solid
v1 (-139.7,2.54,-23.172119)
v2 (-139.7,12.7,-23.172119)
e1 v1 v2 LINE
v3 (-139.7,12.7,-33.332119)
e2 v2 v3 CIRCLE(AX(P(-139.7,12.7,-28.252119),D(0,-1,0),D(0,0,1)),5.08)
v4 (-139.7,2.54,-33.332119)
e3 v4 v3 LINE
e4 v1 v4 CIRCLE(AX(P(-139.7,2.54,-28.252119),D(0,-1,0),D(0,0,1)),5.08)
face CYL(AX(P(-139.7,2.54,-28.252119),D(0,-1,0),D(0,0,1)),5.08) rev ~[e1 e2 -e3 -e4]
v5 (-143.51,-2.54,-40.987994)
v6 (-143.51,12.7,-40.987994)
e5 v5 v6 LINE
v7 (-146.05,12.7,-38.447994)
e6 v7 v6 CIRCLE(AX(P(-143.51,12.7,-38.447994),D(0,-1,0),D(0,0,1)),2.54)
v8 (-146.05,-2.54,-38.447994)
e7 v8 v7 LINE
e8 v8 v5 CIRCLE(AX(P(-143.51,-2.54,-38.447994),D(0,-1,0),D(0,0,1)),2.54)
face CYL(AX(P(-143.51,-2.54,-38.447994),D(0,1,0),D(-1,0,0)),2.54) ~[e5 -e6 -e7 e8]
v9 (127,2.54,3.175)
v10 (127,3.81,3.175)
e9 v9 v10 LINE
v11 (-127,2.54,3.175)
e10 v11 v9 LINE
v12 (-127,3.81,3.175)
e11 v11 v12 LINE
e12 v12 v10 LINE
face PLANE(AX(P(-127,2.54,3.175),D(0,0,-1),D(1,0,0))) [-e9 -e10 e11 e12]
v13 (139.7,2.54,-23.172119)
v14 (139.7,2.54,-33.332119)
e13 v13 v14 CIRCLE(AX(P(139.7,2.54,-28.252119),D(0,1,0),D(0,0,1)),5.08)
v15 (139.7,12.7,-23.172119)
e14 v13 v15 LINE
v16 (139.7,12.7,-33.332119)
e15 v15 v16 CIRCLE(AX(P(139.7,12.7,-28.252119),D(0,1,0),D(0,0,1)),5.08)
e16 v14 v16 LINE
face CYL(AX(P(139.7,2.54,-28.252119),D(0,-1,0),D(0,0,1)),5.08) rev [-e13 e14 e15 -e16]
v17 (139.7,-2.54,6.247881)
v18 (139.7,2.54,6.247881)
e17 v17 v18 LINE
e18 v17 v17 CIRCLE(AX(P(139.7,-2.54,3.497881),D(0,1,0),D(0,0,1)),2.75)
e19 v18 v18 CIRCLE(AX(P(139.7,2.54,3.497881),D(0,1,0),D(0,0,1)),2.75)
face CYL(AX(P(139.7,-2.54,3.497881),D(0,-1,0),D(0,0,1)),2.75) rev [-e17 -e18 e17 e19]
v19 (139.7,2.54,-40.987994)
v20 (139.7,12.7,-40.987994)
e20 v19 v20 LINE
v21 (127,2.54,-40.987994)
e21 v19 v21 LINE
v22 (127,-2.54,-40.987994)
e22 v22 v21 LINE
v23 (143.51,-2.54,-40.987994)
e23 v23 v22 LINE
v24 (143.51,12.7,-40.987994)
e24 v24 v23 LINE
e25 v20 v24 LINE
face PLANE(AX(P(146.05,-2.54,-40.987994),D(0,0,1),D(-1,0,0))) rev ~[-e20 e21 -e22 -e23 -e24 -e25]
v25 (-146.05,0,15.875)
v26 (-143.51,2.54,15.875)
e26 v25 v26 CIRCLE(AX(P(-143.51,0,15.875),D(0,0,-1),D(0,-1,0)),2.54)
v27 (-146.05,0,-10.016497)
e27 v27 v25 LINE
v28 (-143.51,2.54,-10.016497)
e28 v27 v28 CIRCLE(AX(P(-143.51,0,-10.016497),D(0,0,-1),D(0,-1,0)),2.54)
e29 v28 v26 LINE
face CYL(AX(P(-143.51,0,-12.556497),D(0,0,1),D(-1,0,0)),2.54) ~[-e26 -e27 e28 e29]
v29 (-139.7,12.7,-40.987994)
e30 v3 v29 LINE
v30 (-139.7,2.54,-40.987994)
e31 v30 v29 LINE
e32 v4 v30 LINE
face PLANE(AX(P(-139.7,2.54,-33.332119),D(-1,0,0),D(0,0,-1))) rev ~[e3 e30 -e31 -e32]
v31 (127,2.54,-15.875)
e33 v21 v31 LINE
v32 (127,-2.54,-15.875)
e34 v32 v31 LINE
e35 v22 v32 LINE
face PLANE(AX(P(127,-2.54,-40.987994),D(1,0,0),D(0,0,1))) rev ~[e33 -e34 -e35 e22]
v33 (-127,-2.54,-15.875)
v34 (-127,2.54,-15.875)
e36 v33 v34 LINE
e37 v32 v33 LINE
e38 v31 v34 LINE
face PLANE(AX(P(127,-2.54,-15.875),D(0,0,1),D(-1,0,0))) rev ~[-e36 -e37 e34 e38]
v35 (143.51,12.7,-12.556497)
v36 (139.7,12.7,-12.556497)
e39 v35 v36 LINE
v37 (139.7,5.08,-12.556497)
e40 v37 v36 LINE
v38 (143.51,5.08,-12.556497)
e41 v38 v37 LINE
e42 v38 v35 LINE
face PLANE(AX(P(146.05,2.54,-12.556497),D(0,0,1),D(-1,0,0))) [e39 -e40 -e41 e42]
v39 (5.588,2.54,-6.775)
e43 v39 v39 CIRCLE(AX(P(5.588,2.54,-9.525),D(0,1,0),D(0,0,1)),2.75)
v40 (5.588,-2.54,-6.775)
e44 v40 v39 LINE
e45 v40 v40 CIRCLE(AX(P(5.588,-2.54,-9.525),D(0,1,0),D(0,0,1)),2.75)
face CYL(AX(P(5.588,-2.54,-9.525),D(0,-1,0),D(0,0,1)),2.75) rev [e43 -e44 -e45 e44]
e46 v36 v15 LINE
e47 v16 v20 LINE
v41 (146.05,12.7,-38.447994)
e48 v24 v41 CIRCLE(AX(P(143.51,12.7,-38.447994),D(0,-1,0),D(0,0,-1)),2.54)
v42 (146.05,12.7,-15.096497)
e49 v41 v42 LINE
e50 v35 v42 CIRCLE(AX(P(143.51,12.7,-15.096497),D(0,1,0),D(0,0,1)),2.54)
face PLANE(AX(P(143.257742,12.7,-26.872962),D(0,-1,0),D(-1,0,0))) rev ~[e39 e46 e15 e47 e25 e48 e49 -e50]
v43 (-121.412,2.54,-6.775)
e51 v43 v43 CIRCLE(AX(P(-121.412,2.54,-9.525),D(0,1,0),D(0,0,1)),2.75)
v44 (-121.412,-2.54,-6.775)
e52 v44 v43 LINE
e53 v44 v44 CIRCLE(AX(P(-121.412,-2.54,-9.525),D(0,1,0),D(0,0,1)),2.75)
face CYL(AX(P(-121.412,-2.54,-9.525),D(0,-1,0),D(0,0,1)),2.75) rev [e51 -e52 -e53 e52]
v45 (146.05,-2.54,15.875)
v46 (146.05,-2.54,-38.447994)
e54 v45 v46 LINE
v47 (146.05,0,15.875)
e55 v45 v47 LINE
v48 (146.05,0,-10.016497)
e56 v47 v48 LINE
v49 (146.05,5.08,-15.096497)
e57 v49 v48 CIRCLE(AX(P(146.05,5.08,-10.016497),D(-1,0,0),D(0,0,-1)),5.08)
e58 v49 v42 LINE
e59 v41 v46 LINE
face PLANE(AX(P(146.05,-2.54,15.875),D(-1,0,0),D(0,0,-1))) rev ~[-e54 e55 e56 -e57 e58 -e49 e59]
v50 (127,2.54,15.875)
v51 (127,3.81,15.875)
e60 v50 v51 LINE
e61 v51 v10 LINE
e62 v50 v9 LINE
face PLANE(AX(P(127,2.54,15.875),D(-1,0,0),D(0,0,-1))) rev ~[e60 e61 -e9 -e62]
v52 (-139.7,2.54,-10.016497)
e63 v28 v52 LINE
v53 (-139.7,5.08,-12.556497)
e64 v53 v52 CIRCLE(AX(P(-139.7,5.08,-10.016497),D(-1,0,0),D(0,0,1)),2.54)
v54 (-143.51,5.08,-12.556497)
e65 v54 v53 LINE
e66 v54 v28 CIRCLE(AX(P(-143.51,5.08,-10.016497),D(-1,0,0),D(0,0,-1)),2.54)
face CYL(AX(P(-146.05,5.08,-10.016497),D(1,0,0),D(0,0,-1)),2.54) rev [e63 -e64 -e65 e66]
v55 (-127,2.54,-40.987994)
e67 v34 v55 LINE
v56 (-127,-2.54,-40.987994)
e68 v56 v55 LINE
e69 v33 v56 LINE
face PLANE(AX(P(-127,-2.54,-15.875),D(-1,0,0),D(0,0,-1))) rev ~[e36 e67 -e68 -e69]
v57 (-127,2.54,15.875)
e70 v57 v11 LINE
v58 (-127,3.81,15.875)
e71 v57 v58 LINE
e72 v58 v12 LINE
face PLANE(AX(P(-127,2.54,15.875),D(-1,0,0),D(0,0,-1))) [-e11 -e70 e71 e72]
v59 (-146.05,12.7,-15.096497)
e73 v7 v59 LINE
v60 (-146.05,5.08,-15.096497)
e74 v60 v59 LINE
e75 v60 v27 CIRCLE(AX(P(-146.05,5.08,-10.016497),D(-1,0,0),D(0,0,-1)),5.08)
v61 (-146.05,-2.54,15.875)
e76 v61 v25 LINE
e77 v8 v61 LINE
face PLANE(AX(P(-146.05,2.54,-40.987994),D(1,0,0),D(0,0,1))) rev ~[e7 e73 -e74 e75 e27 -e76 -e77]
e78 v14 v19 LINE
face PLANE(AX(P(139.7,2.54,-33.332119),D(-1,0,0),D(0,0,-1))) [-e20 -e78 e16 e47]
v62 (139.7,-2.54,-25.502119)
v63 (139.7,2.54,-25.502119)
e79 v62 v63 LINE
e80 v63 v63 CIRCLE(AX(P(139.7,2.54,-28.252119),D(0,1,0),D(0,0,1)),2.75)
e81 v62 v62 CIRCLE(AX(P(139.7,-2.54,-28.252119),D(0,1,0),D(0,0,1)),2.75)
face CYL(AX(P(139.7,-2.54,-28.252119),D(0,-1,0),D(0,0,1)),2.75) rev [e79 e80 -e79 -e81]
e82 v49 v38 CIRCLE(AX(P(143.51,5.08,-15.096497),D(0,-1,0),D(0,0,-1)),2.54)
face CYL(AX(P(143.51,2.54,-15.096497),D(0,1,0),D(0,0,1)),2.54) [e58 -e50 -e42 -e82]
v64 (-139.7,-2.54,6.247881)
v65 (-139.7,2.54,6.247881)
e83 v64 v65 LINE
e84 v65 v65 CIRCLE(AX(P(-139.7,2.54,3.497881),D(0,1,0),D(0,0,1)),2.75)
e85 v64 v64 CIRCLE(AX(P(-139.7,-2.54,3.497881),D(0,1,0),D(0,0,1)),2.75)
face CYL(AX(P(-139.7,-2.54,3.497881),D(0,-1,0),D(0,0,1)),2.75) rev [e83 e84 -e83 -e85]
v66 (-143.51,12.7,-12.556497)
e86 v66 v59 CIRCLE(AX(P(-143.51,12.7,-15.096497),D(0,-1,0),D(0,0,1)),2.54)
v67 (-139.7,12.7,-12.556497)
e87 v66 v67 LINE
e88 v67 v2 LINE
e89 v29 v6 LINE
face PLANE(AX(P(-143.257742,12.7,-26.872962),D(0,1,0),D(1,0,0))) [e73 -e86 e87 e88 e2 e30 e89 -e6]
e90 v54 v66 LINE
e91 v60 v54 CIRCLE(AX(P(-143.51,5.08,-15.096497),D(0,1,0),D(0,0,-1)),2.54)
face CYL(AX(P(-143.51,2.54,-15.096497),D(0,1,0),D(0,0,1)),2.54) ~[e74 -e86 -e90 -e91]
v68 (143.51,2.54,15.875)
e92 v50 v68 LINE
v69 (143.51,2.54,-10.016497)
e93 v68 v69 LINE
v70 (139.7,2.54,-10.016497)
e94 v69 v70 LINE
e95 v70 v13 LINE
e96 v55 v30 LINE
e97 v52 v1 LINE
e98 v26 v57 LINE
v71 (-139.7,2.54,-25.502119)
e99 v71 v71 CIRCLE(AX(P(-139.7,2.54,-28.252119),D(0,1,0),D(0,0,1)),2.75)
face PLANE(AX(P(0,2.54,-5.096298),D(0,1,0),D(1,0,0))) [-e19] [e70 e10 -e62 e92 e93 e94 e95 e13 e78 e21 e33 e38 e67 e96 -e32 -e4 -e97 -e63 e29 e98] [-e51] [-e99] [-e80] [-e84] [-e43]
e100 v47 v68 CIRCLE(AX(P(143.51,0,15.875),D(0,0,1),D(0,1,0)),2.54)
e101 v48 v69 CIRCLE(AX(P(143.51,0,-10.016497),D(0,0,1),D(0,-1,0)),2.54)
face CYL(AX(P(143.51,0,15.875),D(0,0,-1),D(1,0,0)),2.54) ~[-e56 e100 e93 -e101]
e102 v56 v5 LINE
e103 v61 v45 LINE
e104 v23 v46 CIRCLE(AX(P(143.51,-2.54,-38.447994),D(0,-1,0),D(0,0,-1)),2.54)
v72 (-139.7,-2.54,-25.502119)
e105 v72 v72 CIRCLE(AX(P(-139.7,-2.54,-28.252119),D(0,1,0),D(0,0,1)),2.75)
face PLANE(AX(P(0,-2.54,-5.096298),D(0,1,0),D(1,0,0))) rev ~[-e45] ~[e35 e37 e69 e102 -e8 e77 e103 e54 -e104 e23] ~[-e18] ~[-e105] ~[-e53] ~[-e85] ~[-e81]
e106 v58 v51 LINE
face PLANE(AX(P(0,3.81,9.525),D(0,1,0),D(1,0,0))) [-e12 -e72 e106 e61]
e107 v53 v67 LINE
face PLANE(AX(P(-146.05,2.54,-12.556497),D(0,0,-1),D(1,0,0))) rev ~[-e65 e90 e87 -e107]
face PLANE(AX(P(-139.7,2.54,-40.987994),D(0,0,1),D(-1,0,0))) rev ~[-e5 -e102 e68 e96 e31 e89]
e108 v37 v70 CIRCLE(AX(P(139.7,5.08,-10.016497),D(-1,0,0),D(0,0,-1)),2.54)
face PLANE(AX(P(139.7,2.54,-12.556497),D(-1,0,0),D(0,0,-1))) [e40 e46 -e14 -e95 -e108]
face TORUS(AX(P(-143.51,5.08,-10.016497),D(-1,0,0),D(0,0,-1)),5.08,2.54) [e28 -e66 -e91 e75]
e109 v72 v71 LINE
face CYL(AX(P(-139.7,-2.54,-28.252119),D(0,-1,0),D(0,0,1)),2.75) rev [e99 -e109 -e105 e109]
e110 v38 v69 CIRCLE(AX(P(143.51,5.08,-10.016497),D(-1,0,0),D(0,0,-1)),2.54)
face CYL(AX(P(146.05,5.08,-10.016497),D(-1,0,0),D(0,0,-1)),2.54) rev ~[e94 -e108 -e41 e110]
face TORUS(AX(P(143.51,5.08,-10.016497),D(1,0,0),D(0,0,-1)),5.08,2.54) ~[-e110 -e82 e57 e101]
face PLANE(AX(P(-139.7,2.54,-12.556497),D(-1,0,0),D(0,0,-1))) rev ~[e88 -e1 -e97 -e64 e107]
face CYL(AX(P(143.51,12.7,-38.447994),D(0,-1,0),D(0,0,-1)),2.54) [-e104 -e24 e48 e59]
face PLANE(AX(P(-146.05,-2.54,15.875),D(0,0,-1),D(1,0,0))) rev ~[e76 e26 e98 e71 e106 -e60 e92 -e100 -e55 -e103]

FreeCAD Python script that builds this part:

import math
import FreeCAD as App
import Part
import Sketcher

V = App.Vector
Q = App.Units.Quantity


def edges_at(feature, points):
    """Names of the edges that pass closest to the given points."""
    edges = feature.Shape.Edges
    near = lambda p: min(range(len(edges)), key=lambda i: edges[i].distToShape(Part.Vertex(*p))[0])
    return sorted({f"Edge{near(p) + 1}" for p in points})

doc = App.newDocument("Part")
body = doc.addObject("PartDesign::Body", "Body")

sketch1 = doc.addObject("Sketcher::SketchObject", "Sketch")
body.addObject(sketch1)
sketch1.AttachmentSupport = (doc.XZ_Plane, [""])
sketch1.MapMode = "FlatFace"
sketch1.addGeometry(Part.LineSegment(V(-146.1, 15.9, 0), V(146.1, 15.9, 0)), False)
sketch1.addGeometry(Part.LineSegment(V(146.1, 15.9, 0), V(146.1, -41, 0)), False)
sketch1.addGeometry(Part.LineSegment(V(146.1, -41, 0), V(127, -41, 0)), False)
sketch1.addGeometry(Part.LineSegment(V(127, -41, 0), V(127, -15.9, 0)), False)
sketch1.addGeometry(Part.LineSegment(V(127, -15.9, 0), V(-127, -15.9, 0)), False)
sketch1.addGeometry(Part.LineSegment(V(-127, -15.9, 0), V(-127, -41, 0)), False)
sketch1.addGeometry(Part.LineSegment(V(-127, -41, 0), V(-146.1, -41, 0)), False)
sketch1.addGeometry(Part.LineSegment(V(-146.1, -41, 0), V(-146.1, 15.9, 0)), False)
sketch1.addGeometry(Part.Circle(V(-139.7, 3.5, 0), V(0, 0, 1), 2.8), False)
sketch1.addGeometry(Part.Circle(V(-121.4, -9.5, 0), V(0, 0, 1), 2.8), False)
sketch1.addGeometry(Part.Circle(V(139.7, 3.5, 0), V(0, 0, 1), 2.8), False)
sketch1.addGeometry(Part.Circle(V(5.6, -9.5, 0), V(0, 0, 1), 2.8), False)
sketch1.addGeometry(Part.Circle(V(-139.7, -28.3, 0), V(0, 0, 1), 2.8), False)
sketch1.addGeometry(Part.Circle(V(139.7, -28.3, 0), V(0, 0, 1), 2.8), False)
sketch1.addConstraint(Sketcher.Constraint("Coincident", 0, 2, 1, 1))
sketch1.addConstraint(Sketcher.Constraint("Coincident", 1, 2, 2, 1))
sketch1.addConstraint(Sketcher.Constraint("Coincident", 2, 2, 3, 1))
sketch1.addConstraint(Sketcher.Constraint("Coincident", 3, 2, 4, 1))
sketch1.addConstraint(Sketcher.Constraint("Coincident", 4, 2, 5, 1))
sketch1.addConstraint(Sketcher.Constraint("Coincident", 5, 2, 6, 1))
sketch1.addConstraint(Sketcher.Constraint("Coincident", 6, 2, 7, 1))
sketch1.addConstraint(Sketcher.Constraint("Coincident", 7, 2, 0, 1))
sketch1.addConstraint(Sketcher.Constraint("Horizontal", 0))
sketch1.addConstraint(Sketcher.Constraint("Vertical", 1))
sketch1.addConstraint(Sketcher.Constraint("Horizontal", 2))
sketch1.addConstraint(Sketcher.Constraint("Vertical", 3))
sketch1.addConstraint(Sketcher.Constraint("Horizontal", 4))
sketch1.addConstraint(Sketcher.Constraint("Vertical", 5))
sketch1.addConstraint(Sketcher.Constraint("Horizontal", 6))
sketch1.addConstraint(Sketcher.Constraint("Vertical", 7))
sketch1.addConstraint(Sketcher.Constraint("Equal", 8, 9))
sketch1.addConstraint(Sketcher.Constraint("Equal", 9, 10))
sketch1.addConstraint(Sketcher.Constraint("Equal", 10, 11))
sketch1.addConstraint(Sketcher.Constraint("Equal", 11, 12))
sketch1.addConstraint(Sketcher.Constraint("Equal", 12, 13))
sketch1.addConstraint(Sketcher.Constraint("Symmetric", 8, 3, 10, 3, -2))
sketch1.addConstraint(Sketcher.Constraint("Symmetric", 12, 3, 13, 3, -2))
sketch1.addConstraint(Sketcher.Constraint("Symmetric", 2, 2, 5, 2, -2))
sketch1.addConstraint(Sketcher.Constraint("Horizontal", 9, 3, 11, 3))
sketch1.addConstraint(Sketcher.Constraint("Vertical", 8, 3, 12, 3))
sketch1.addConstraint(Sketcher.Constraint("Equal", 2, 6))
sketch1.addConstraint(Sketcher.Constraint("DistanceX", 4, 2, 4, 1, Q("10 in")))
sketch1.addConstraint(Sketcher.Constraint("DistanceX", 0, 1, 0, 2, Q("11.5 in")))
sketch1.addConstraint(Sketcher.Constraint("DistanceX", 8, 3, 10, 3, Q("11 in")))
sketch1.addConstraint(Sketcher.Constraint("DistanceX", 9, 3, 11, 3, Q("5 in")))
sketch1.addConstraint(Sketcher.Constraint("DistanceY", 11, 3, 0, 2, Q("1 in")))
sketch1.addConstraint(Sketcher.Constraint("Diameter", 8, Q("5.5 mm")))
sketch1.addConstraint(Sketcher.Constraint("DistanceX", 9, 3, -1, 1, Q("4.78 in")))
sketch1.addConstraint(Sketcher.Constraint("DistanceY", 12, 3, 8, 3, Q("1.25 in")))
sketch1.addConstraint(Sketcher.Constraint("DistanceY", 3, 2, 0, 2, Q("1.25 in")))
sketch1.addConstraint(Sketcher.Constraint("DistanceY", 9, 3, -1, 1, Q("0.375 in")))
sketch1.addConstraint(Sketcher.Constraint("DistanceY", 1, 2, 1, 1, Q("56.862994 mm")))
sketch1.addConstraint(Sketcher.Constraint("DistanceY", -1, 1, 8, 3, Q("3.497881 mm")))
pad1 = doc.addObject("PartDesign::Pad", "Pad")
body.addObject(pad1)
pad1.Profile = sketch1
pad1.Type = "TwoLengths"
pad1.Length = Q("0.1 in")
pad1.Length2 = Q("0.1 in")
pad1.Reversed = True

sketch2 = doc.addObject("Sketcher::SketchObject", "Sketch001")
body.addObject(sketch2)
sketch2.AttachmentSupport = (doc.XZ_Plane, [""])
sketch2.MapMode = "FlatFace"
sketch2.AttachmentOffset = App.Placement(V(0, 0, -0.1 * 25.4), App.Rotation())
sketch2.addGeometry(Part.LineSegment(V(-140, -33, 0), V(-140, -41, 0)), False)
sketch2.addGeometry(Part.LineSegment(V(-140, -41, 0), V(-146, -41, 0)), False)
sketch2.addGeometry(Part.LineSegment(V(-146, -41, 0), V(-146, -13, 0)), False)
sketch2.addGeometry(Part.LineSegment(V(-146, -13, 0), V(-140, -13, 0)), False)
sketch2.addGeometry(Part.LineSegment(V(-140, -13, 0), V(-140, -23, 0)), False)
sketch2.addGeometry(Part.ArcOfCircle(Part.Circle(V(-140, -28, 0), V(0, 0, 1), 5), math.radians(90), math.radians(270)), False)
sketch2.addGeometry(Part.LineSegment(V(146, -13, 0), V(146, -41, 0)), False)
sketch2.addGeometry(Part.LineSegment(V(146, -41, 0), V(140, -41, 0)), False)
sketch2.addGeometry(Part.LineSegment(V(140, -41, 0), V(140, -33, 0)), False)
sketch2.addGeometry(Part.ArcOfCircle(Part.Circle(V(140, -28, 0), V(0, 0, 1), 5), math.radians(-90), math.radians(90)), False)
sketch2.addGeometry(Part.LineSegment(V(140, -23, 0), V(140, -13, 0)), False)
sketch2.addGeometry(Part.LineSegment(V(140, -13, 0), V(146, -13, 0)), False)
sketch2.addConstraint(Sketcher.Constraint("Coincident", 0, 2, 1, 1))
sketch2.addConstraint(Sketcher.Constraint("Coincident", 1, 2, 2, 1))
sketch2.addConstraint(Sketcher.Constraint("Coincident", 2, 2, 3, 1))
sketch2.addConstraint(Sketcher.Constraint("Coincident", 3, 2, 4, 1))
sketch2.addConstraint(Sketcher.Constraint("Coincident", 4, 2, 5, 1))
sketch2.addConstraint(Sketcher.Constraint("Coincident", 5, 2, 0, 1))
sketch2.addConstraint(Sketcher.Constraint("Coincident", 6, 2, 7, 1))
sketch2.addConstraint(Sketcher.Constraint("Coincident", 7, 2, 8, 1))
sketch2.addConstraint(Sketcher.Constraint("Coincident", 8, 2, 9, 1))
sketch2.addConstraint(Sketcher.Constraint("Coincident", 9, 2, 10, 1))
sketch2.addConstraint(Sketcher.Constraint("Coincident", 10, 2, 11, 1))
sketch2.addConstraint(Sketcher.Constraint("Coincident", 11, 2, 6, 1))
sketch2.addConstraint(Sketcher.Constraint("Vertical", 0))
sketch2.addConstraint(Sketcher.Constraint("Horizontal", 1))
sketch2.addConstraint(Sketcher.Constraint("Vertical", 2))
sketch2.addConstraint(Sketcher.Constraint("Horizontal", 3))
sketch2.addConstraint(Sketcher.Constraint("Vertical", 4))
sketch2.addConstraint(Sketcher.Constraint("Vertical", 6))
sketch2.addConstraint(Sketcher.Constraint("Horizontal", 7))
sketch2.addConstraint(Sketcher.Constraint("Vertical", 8))
sketch2.addConstraint(Sketcher.Constraint("Vertical", 10))
sketch2.addConstraint(Sketcher.Constraint("Horizontal", 11))
sketch2.addConstraint(Sketcher.Constraint("Equal", 5, 9))
sketch2.addConstraint(Sketcher.Constraint("Symmetric", 5, 3, 9, 3, -2))
sketch2.addConstraint(Sketcher.Constraint("Symmetric", 1, 2, 6, 2, -2))
sketch2.addConstraint(Sketcher.Constraint("Symmetric", 3, 2, 10, 2, -2))
sketch2.addConstraint(Sketcher.Constraint("Vertical", 5, 3, 0, 2))
sketch2.addConstraint(Sketcher.Constraint("Vertical", 0, 2, 3, 2))
sketch2.addConstraint(Sketcher.Constraint("Vertical", 9, 3, 7, 2))
sketch2.addConstraint(Sketcher.Constraint("Radius", 5, Q("0.2 in")))
sketch2.addConstraint(Sketcher.Constraint("DistanceX", 5, 3, 9, 3, Q("11 in")))
sketch2.addConstraint(Sketcher.Constraint("DistanceX", 1, 2, 1, 1, Q("0.25 in")))
sketch2.addConstraint(Sketcher.Constraint("DistanceY", 4, 2, 4, 1, Q("10.615621 mm")))
sketch2.addConstraint(Sketcher.Constraint("DistanceY", 0, 2, 0, 1, Q("7.655876 mm")))
sketch2.addConstraint(Sketcher.Constraint("DistanceY", 5, 3, -1, 1, Q("28.252119 mm")))
pad2 = doc.addObject("PartDesign::Pad", "Pad001")
body.addObject(pad2)
pad2.Profile = sketch2
pad2.Length = Q("0.4 in")
pad2.Reversed = True
doc.recompute()

fillet = doc.addObject("PartDesign::Fillet", "Fillet")
body.addObject(fillet)
fillet.Base = (pad2, edges_at(pad2, [
    (142.875, 2.54, -12.556),
    (146.05, 7.62, -12.556),
    (-146.05, 2.54, 1.659),
    (-146.05, 5.08, -40.988),
    (146.05, 5.08, -40.988),
    (146.05, 2.54, 1.659),
    (-142.875, 2.54, -12.556),
    (-146.05, 7.62, -12.556),
]))
fillet.Radius = Q("0.1 in")

sketch3 = doc.addObject("Sketcher::SketchObject", "Sketch002")
body.addObject(sketch3)
sketch3.AttachmentSupport = (doc.XZ_Plane, [""])
sketch3.MapMode = "FlatFace"
sketch3.AttachmentOffset = App.Placement(V(0, 0, -0.1 * 25.4), App.Rotation())
sketch3.addGeometry(Part.LineSegment(V(-127, 3, 0), V(-127, 16, 0)), False)
sketch3.addGeometry(Part.LineSegment(V(-127, 16, 0), V(127, 16, 0)), False)
sketch3.addGeometry(Part.LineSegment(V(127, 16, 0), V(127, 3, 0)), False)
sketch3.addGeometry(Part.LineSegment(V(127, 3, 0), V(-127, 3, 0)), False)
sketch3.addConstraint(Sketcher.Constraint("Coincident", 0, 2, 1, 1))
sketch3.addConstraint(Sketcher.Constraint("Coincident", 1, 2, 2, 1))
sketch3.addConstraint(Sketcher.Constraint("Coincident", 2, 2, 3, 1))
sketch3.addConstraint(Sketcher.Constraint("Coincident", 3, 2, 0, 1))
sketch3.addConstraint(Sketcher.Constraint("Vertical", 0))
sketch3.addConstraint(Sketcher.Constraint("Horizontal", 1))
sketch3.addConstraint(Sketcher.Constraint("Vertical", 2))
sketch3.addConstraint(Sketcher.Constraint("Horizontal", 3))
sketch3.addConstraint(Sketcher.Constraint("DistanceX", 1, 1, 1, 2, Q("10 in")))
sketch3.addConstraint(Sketcher.Constraint("DistanceY", 0, 1, 0, 2, Q("0.5 in")))
sketch3.addConstraint(Sketcher.Constraint("DistanceX", 0, 2, -1, 1, Q("5 in")))
sketch3.addConstraint(Sketcher.Constraint("DistanceY", -1, 1, 0, 2, Q("0.625 in")))
pad3 = doc.addObject("PartDesign::Pad", "Pad002")
body.addObject(pad3)
pad3.Profile = sketch3
pad3.Length = Q("0.05 in")
pad3.Reversed = True

doc.recompute()
